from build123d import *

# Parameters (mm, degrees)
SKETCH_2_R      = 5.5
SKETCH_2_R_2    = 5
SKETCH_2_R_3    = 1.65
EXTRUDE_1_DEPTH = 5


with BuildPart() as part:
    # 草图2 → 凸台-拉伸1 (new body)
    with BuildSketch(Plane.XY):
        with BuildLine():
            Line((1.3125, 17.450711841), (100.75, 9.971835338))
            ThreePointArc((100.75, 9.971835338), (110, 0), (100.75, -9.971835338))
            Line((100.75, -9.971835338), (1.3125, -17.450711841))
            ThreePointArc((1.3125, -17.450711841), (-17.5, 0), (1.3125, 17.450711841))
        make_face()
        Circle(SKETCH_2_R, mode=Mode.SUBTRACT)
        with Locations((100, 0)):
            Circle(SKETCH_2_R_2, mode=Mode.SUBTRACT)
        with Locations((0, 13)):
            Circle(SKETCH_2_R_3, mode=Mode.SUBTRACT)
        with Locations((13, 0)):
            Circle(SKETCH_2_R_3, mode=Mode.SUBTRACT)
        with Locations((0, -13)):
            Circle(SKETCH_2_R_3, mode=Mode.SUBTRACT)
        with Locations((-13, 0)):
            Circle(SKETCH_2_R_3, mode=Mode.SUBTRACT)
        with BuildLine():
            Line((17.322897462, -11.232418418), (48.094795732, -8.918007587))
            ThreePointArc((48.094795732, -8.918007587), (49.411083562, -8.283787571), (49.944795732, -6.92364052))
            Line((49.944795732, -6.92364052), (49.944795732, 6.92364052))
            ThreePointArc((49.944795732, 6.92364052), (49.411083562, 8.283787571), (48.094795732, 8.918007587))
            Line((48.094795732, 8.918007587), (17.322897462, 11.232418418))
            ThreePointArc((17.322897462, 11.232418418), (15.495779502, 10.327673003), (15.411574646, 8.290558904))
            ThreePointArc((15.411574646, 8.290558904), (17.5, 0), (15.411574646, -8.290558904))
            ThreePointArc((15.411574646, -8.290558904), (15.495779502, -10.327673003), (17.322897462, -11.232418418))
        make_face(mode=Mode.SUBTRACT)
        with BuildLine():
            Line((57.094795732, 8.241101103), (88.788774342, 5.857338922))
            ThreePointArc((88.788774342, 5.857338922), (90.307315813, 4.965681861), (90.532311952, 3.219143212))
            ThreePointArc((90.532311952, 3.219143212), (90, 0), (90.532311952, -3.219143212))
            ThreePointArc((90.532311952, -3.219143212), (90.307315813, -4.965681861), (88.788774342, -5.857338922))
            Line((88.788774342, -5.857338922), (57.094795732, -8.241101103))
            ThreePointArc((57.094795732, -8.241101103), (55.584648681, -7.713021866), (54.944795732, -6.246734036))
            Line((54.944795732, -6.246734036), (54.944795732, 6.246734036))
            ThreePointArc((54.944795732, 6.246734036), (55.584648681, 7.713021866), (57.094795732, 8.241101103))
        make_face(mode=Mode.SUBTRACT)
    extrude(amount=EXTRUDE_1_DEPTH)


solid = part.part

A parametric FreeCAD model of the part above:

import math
import FreeCAD as App
import Part
import Sketcher

V = App.Vector

doc = App.newDocument("Part")
params = doc.addObject("Spreadsheet::Sheet", "Params")
for row, (alias, value) in enumerate([
    ("sketch1_diameter", "10 mm"),
    ("sketch1_diameter2", "11 mm"),
    ("sketch1_radius", "10 mm"),
    ("sketch1_radius2", "2 mm"),
    ("sketch1_diameter3", "3.3 mm"),
    ("pad1_length", "5 mm"),
], start=1):
    params.set(f"A{row}", alias)
    params.set(f"B{row}", "=" + value)
    params.setAlias(f"B{row}", alias)

body = doc.addObject("PartDesign::Body", "Body")

# Sketch on XY plane
sketch1 = body.newObject("Sketcher::SketchObject", "Sketch")
sketch1.AttachmentSupport = (doc.getObject("XY_Plane"), [""])
sketch1.MapMode = "FlatFace"
sketch1.addGeometry(Part.LineSegment(V(100.75, 9.971835, 0), V(1.3125, 17.450712, 0)), False)
sketch1.addGeometry(Part.ArcOfCircle(Part.Circle(V(0, 0, 0), V(0, 0, 1), 17.5), math.radians(85.698778), math.radians(274.301222)), False)
sketch1.addGeometry(Part.LineSegment(V(1.3125, -17.450712, 0), V(100.75, -9.971835, 0)), False)
sketch1.addGeometry(Part.ArcOfCircle(Part.Circle(V(100, 0, 0), V(0, 0, 1), 10), math.radians(-85.698778), math.radians(85.698778)), False)
sketch1.addGeometry(Part.Circle(V(100, 0, 0), V(0, 0, 1), 5), False)
sketch1.addGeometry(Part.LineSegment(V(57.094796, 8.241101, 0), V(88.788774, 5.857339, 0)), False)
sketch1.addGeometry(Part.ArcOfCircle(Part.Circle(V(88.638774, 3.862972, 0), V(0, 0, 1), 2), math.radians(-18.778734), math.radians(85.698778)), False)
sketch1.addGeometry(Part.ArcOfCircle(Part.Circle(V(100, 0, 0), V(0, 0, 1), 10), math.radians(161.221265), math.radians(198.778735)), False)
sketch1.addGeometry(Part.ArcOfCircle(Part.Circle(V(88.638774, -3.862972, 0), V(0, 0, 1), 2), math.radians(-85.698778), math.radians(18.778734)), False)
sketch1.addGeometry(Part.LineSegment(V(88.788774, -5.857339, 0), V(57.094796, -8.241101, 0)), False)
sketch1.addGeometry(Part.ArcOfCircle(Part.Circle(V(56.944796, -6.246734, 0), V(0, 0, 1), 2), math.radians(180), math.radians(274.301222)), False)
sketch1.addGeometry(Part.LineSegment(V(54.944796, -6.246734, 0), V(54.944796, 6.246734, 0)), False)
sketch1.addGeometry(Part.ArcOfCircle(Part.Circle(V(56.944796, 6.246734, 0), V(0, 0, 1), 2), math.radians(85.698778), math.radians(180)), False)
sketch1.addGeometry(Part.Circle(V(0, -13, 0), V(0, 0, 1), 1.65), False)
sketch1.addGeometry(Part.ArcOfCircle(Part.Circle(V(17.172897, -9.238051, 0), V(0, 0, 1), 2), math.radians(151.722252), math.radians(274.301222)), False)
sketch1.addGeometry(Part.ArcOfCircle(Part.Circle(V(0, 0, 0), V(0, 0, 1), 17.5), math.radians(-28.277748), math.radians(28.277748)), False)
sketch1.addGeometry(Part.ArcOfCircle(Part.Circle(V(17.172897, 9.238051, 0), V(0, 0, 1), 2), math.radians(85.698778), math.radians(208.277748)), False)
sketch1.addGeometry(Part.LineSegment(V(17.322897, 11.232418, 0), V(48.094796, 8.918008, 0)), False)
sketch1.addGeometry(Part.ArcOfCircle(Part.Circle(V(47.944796, 6.923641, 0), V(0, 0, 1), 2), math.radians(0), math.radians(85.698778)), False)
sketch1.addGeometry(Part.LineSegment(V(49.944796, 6.923641, 0), V(49.944796, -6.923641, 0)), False)
sketch1.addGeometry(Part.ArcOfCircle(Part.Circle(V(47.944796, -6.923641, 0), V(0, 0, 1), 2), math.radians(-85.698778), math.radians(0)), False)
sketch1.addGeometry(Part.LineSegment(V(48.094796, -8.918008, 0), V(17.322897, -11.232418, 0)), False)
sketch1.addGeometry(Part.Circle(V(0, 0, 0), V(0, 0, 1), 5.5), False)
sketch1.addGeometry(Part.Circle(V(13, 0, 0), V(0, 0, 1), 1.65), False)
sketch1.addGeometry(Part.Circle(V(-13, 0, 0), V(0, 0, 1), 1.65), False)
sketch1.addGeometry(Part.Circle(V(0, 13, 0), V(0, 0, 1), 1.65), False)
sketch1.addConstraint(Sketcher.Constraint("Tangent", 0, 2, 1, 1))
sketch1.addConstraint(Sketcher.Constraint("Tangent", 1, 2, 2, 1))
sketch1.addConstraint(Sketcher.Constraint("Tangent", 2, 2, 3, 1))
sketch1.addConstraint(Sketcher.Constraint("Tangent", 3, 2, 0, 1))
sketch1.addConstraint(Sketcher.Constraint("Tangent", 5, 2, 6, 2))
sketch1.addConstraint(Sketcher.Constraint("Tangent", 6, 1, 7, 1))
sketch1.addConstraint(Sketcher.Constraint("Tangent", 7, 2, 8, 2))
sketch1.addConstraint(Sketcher.Constraint("Tangent", 8, 1, 9, 1))
sketch1.addConstraint(Sketcher.Constraint("Tangent", 9, 2, 10, 2))
sketch1.addConstraint(Sketcher.Constraint("Tangent", 10, 1, 11, 1))
sketch1.addConstraint(Sketcher.Constraint("Tangent", 11, 2, 12, 2))
sketch1.addConstraint(Sketcher.Constraint("Tangent", 12, 1, 5, 1))
sketch1.addConstraint(Sketcher.Constraint("Tangent", 14, 1, 15, 1))
sketch1.addConstraint(Sketcher.Constraint("Tangent", 15, 2, 16, 2))
sketch1.addConstraint(Sketcher.Constraint("Tangent", 16, 1, 17, 1))
sketch1.addConstraint(Sketcher.Constraint("Tangent", 17, 2, 18, 2))
sketch1.addConstraint(Sketcher.Constraint("Tangent", 18, 1, 19, 1))
sketch1.addConstraint(Sketcher.Constraint("Tangent", 19, 2, 20, 2))
sketch1.addConstraint(Sketcher.Constraint("Tangent", 20, 1, 21, 1))
sketch1.addConstraint(Sketcher.Constraint("Tangent", 21, 2, 14, 2))
sketch1.addConstraint(Sketcher.Constraint("Vertical", 11))
sketch1.addConstraint(Sketcher.Constraint("Vertical", 19))
sketch1.addConstraint(Sketcher.Constraint("Coincident", 1, 3, -1, 1))
sketch1.addConstraint(Sketcher.Constraint("Coincident", 15, 3, -1, 1))
sketch1.addConstraint(Sketcher.Constraint("Coincident", 22, 3, -1, 1))
sketch1.addConstraint(Sketcher.Constraint("Coincident", 4, 3, 3, 3))
sketch1.addConstraint(Sketcher.Constraint("Coincident", 7, 3, 3, 3))
sketch1.addConstraint(Sketcher.Constraint("Equal", 3, 7))
sketch1.addConstraint(Sketcher.Constraint("Equal", 6, 8))
sketch1.addConstraint(Sketcher.Constraint("Equal", 8, 10))
sketch1.addConstraint(Sketcher.Constraint("Equal", 10, 12))
sketch1.addConstraint(Sketcher.Constraint("Equal", 12, 14))
sketch1.addConstraint(Sketcher.Constraint("Equal", 1, 15))
sketch1.addConstraint(Sketcher.Constraint("Equal", 14, 16))
sketch1.addConstraint(Sketcher.Constraint("Equal", 16, 18))
sketch1.addConstraint(Sketcher.Constraint("Equal", 18, 20))
sketch1.addConstraint(Sketcher.Constraint("Equal", 13, 23))
sketch1.addConstraint(Sketcher.Constraint("Equal", 23, 24))
sketch1.addConstraint(Sketcher.Constraint("Equal", 24, 25))
sketch1.addConstraint(Sketcher.Constraint("Symmetric", 23, 3, 24, 3, -1, 1))
sketch1.addConstraint(Sketcher.Constraint("Symmetric", 13, 3, 25, 3, -1, 1))
sketch1.addConstraint(Sketcher.Constraint("Symmetric", 6, 3, 8, 3, -1))
sketch1.addConstraint(Sketcher.Constraint("Symmetric", 17, 2, 20, 1, -1))
sketch1.addConstraint(Sketcher.Constraint("PointOnObject", 13, 3, -2))
sketch1.addConstraint(Sketcher.Constraint("PointOnObject", 23, 3, -1))
sketch1.addConstraint(Sketcher.Constraint("Parallel", 0, 5))
sketch1.addConstraint(Sketcher.Constraint("Parallel", 2, 9))
sketch1.addConstraint(Sketcher.Constraint("Parallel", 5, 17))
sketch1.addConstraint(Sketcher.Constraint("Diameter", 4, 10.0))
sketch1.addConstraint(Sketcher.Constraint("Diameter", 22, 11.0))
sketch1.addConstraint(Sketcher.Constraint("Radius", 3, 10.0))
sketch1.addConstraint(Sketcher.Constraint("Radius", 6, 2.0))
sketch1.addConstraint(Sketcher.Constraint("Diameter", 13, 3.3))
sketch1.addConstraint(Sketcher.Constraint("Radius", 1, 17.5))
sketch1.addConstraint(Sketcher.Constraint("DistanceX", -1, 1, 3, 3, 100.0))
sketch1.addConstraint(Sketcher.Constraint("DistanceY", 13, 3, -1, 1, 13.0))
sketch1.addConstraint(Sketcher.Constraint("DistanceX", -1, 1, 23, 3, 13.0))
sketch1.addConstraint(Sketcher.Constraint("DistanceX", 18, 3, 12, 3, 9.0))
sketch1.addConstraint(Sketcher.Constraint("DistanceY", 11, 1, 11, 2, 12.493468))
sketch1.addConstraint(Sketcher.Constraint("DistanceY", 19, 2, 19, 1, 13.847281))
sketch1.addConstraint(Sketcher.Constraint("DistanceX", 14, 3, 10, 3, 39.771898))
sketch1.setExpression("Constraints[48]", "Params.sketch1_diameter")
sketch1.setExpression("Constraints[49]", "Params.sketch1_diameter2")
sketch1.setExpression("Constraints[50]", "Params.sketch1_radius")
sketch1.setExpression("Constraints[51]", "Params.sketch1_radius2")
sketch1.setExpression("Constraints[52]", "Params.sketch1_diameter3")
pad1 = body.newObject("PartDesign::Pad", "Pad")
pad1.Profile = sketch1
pad1.setExpression("Length", "Params.pad1_length")

doc.recompute()
